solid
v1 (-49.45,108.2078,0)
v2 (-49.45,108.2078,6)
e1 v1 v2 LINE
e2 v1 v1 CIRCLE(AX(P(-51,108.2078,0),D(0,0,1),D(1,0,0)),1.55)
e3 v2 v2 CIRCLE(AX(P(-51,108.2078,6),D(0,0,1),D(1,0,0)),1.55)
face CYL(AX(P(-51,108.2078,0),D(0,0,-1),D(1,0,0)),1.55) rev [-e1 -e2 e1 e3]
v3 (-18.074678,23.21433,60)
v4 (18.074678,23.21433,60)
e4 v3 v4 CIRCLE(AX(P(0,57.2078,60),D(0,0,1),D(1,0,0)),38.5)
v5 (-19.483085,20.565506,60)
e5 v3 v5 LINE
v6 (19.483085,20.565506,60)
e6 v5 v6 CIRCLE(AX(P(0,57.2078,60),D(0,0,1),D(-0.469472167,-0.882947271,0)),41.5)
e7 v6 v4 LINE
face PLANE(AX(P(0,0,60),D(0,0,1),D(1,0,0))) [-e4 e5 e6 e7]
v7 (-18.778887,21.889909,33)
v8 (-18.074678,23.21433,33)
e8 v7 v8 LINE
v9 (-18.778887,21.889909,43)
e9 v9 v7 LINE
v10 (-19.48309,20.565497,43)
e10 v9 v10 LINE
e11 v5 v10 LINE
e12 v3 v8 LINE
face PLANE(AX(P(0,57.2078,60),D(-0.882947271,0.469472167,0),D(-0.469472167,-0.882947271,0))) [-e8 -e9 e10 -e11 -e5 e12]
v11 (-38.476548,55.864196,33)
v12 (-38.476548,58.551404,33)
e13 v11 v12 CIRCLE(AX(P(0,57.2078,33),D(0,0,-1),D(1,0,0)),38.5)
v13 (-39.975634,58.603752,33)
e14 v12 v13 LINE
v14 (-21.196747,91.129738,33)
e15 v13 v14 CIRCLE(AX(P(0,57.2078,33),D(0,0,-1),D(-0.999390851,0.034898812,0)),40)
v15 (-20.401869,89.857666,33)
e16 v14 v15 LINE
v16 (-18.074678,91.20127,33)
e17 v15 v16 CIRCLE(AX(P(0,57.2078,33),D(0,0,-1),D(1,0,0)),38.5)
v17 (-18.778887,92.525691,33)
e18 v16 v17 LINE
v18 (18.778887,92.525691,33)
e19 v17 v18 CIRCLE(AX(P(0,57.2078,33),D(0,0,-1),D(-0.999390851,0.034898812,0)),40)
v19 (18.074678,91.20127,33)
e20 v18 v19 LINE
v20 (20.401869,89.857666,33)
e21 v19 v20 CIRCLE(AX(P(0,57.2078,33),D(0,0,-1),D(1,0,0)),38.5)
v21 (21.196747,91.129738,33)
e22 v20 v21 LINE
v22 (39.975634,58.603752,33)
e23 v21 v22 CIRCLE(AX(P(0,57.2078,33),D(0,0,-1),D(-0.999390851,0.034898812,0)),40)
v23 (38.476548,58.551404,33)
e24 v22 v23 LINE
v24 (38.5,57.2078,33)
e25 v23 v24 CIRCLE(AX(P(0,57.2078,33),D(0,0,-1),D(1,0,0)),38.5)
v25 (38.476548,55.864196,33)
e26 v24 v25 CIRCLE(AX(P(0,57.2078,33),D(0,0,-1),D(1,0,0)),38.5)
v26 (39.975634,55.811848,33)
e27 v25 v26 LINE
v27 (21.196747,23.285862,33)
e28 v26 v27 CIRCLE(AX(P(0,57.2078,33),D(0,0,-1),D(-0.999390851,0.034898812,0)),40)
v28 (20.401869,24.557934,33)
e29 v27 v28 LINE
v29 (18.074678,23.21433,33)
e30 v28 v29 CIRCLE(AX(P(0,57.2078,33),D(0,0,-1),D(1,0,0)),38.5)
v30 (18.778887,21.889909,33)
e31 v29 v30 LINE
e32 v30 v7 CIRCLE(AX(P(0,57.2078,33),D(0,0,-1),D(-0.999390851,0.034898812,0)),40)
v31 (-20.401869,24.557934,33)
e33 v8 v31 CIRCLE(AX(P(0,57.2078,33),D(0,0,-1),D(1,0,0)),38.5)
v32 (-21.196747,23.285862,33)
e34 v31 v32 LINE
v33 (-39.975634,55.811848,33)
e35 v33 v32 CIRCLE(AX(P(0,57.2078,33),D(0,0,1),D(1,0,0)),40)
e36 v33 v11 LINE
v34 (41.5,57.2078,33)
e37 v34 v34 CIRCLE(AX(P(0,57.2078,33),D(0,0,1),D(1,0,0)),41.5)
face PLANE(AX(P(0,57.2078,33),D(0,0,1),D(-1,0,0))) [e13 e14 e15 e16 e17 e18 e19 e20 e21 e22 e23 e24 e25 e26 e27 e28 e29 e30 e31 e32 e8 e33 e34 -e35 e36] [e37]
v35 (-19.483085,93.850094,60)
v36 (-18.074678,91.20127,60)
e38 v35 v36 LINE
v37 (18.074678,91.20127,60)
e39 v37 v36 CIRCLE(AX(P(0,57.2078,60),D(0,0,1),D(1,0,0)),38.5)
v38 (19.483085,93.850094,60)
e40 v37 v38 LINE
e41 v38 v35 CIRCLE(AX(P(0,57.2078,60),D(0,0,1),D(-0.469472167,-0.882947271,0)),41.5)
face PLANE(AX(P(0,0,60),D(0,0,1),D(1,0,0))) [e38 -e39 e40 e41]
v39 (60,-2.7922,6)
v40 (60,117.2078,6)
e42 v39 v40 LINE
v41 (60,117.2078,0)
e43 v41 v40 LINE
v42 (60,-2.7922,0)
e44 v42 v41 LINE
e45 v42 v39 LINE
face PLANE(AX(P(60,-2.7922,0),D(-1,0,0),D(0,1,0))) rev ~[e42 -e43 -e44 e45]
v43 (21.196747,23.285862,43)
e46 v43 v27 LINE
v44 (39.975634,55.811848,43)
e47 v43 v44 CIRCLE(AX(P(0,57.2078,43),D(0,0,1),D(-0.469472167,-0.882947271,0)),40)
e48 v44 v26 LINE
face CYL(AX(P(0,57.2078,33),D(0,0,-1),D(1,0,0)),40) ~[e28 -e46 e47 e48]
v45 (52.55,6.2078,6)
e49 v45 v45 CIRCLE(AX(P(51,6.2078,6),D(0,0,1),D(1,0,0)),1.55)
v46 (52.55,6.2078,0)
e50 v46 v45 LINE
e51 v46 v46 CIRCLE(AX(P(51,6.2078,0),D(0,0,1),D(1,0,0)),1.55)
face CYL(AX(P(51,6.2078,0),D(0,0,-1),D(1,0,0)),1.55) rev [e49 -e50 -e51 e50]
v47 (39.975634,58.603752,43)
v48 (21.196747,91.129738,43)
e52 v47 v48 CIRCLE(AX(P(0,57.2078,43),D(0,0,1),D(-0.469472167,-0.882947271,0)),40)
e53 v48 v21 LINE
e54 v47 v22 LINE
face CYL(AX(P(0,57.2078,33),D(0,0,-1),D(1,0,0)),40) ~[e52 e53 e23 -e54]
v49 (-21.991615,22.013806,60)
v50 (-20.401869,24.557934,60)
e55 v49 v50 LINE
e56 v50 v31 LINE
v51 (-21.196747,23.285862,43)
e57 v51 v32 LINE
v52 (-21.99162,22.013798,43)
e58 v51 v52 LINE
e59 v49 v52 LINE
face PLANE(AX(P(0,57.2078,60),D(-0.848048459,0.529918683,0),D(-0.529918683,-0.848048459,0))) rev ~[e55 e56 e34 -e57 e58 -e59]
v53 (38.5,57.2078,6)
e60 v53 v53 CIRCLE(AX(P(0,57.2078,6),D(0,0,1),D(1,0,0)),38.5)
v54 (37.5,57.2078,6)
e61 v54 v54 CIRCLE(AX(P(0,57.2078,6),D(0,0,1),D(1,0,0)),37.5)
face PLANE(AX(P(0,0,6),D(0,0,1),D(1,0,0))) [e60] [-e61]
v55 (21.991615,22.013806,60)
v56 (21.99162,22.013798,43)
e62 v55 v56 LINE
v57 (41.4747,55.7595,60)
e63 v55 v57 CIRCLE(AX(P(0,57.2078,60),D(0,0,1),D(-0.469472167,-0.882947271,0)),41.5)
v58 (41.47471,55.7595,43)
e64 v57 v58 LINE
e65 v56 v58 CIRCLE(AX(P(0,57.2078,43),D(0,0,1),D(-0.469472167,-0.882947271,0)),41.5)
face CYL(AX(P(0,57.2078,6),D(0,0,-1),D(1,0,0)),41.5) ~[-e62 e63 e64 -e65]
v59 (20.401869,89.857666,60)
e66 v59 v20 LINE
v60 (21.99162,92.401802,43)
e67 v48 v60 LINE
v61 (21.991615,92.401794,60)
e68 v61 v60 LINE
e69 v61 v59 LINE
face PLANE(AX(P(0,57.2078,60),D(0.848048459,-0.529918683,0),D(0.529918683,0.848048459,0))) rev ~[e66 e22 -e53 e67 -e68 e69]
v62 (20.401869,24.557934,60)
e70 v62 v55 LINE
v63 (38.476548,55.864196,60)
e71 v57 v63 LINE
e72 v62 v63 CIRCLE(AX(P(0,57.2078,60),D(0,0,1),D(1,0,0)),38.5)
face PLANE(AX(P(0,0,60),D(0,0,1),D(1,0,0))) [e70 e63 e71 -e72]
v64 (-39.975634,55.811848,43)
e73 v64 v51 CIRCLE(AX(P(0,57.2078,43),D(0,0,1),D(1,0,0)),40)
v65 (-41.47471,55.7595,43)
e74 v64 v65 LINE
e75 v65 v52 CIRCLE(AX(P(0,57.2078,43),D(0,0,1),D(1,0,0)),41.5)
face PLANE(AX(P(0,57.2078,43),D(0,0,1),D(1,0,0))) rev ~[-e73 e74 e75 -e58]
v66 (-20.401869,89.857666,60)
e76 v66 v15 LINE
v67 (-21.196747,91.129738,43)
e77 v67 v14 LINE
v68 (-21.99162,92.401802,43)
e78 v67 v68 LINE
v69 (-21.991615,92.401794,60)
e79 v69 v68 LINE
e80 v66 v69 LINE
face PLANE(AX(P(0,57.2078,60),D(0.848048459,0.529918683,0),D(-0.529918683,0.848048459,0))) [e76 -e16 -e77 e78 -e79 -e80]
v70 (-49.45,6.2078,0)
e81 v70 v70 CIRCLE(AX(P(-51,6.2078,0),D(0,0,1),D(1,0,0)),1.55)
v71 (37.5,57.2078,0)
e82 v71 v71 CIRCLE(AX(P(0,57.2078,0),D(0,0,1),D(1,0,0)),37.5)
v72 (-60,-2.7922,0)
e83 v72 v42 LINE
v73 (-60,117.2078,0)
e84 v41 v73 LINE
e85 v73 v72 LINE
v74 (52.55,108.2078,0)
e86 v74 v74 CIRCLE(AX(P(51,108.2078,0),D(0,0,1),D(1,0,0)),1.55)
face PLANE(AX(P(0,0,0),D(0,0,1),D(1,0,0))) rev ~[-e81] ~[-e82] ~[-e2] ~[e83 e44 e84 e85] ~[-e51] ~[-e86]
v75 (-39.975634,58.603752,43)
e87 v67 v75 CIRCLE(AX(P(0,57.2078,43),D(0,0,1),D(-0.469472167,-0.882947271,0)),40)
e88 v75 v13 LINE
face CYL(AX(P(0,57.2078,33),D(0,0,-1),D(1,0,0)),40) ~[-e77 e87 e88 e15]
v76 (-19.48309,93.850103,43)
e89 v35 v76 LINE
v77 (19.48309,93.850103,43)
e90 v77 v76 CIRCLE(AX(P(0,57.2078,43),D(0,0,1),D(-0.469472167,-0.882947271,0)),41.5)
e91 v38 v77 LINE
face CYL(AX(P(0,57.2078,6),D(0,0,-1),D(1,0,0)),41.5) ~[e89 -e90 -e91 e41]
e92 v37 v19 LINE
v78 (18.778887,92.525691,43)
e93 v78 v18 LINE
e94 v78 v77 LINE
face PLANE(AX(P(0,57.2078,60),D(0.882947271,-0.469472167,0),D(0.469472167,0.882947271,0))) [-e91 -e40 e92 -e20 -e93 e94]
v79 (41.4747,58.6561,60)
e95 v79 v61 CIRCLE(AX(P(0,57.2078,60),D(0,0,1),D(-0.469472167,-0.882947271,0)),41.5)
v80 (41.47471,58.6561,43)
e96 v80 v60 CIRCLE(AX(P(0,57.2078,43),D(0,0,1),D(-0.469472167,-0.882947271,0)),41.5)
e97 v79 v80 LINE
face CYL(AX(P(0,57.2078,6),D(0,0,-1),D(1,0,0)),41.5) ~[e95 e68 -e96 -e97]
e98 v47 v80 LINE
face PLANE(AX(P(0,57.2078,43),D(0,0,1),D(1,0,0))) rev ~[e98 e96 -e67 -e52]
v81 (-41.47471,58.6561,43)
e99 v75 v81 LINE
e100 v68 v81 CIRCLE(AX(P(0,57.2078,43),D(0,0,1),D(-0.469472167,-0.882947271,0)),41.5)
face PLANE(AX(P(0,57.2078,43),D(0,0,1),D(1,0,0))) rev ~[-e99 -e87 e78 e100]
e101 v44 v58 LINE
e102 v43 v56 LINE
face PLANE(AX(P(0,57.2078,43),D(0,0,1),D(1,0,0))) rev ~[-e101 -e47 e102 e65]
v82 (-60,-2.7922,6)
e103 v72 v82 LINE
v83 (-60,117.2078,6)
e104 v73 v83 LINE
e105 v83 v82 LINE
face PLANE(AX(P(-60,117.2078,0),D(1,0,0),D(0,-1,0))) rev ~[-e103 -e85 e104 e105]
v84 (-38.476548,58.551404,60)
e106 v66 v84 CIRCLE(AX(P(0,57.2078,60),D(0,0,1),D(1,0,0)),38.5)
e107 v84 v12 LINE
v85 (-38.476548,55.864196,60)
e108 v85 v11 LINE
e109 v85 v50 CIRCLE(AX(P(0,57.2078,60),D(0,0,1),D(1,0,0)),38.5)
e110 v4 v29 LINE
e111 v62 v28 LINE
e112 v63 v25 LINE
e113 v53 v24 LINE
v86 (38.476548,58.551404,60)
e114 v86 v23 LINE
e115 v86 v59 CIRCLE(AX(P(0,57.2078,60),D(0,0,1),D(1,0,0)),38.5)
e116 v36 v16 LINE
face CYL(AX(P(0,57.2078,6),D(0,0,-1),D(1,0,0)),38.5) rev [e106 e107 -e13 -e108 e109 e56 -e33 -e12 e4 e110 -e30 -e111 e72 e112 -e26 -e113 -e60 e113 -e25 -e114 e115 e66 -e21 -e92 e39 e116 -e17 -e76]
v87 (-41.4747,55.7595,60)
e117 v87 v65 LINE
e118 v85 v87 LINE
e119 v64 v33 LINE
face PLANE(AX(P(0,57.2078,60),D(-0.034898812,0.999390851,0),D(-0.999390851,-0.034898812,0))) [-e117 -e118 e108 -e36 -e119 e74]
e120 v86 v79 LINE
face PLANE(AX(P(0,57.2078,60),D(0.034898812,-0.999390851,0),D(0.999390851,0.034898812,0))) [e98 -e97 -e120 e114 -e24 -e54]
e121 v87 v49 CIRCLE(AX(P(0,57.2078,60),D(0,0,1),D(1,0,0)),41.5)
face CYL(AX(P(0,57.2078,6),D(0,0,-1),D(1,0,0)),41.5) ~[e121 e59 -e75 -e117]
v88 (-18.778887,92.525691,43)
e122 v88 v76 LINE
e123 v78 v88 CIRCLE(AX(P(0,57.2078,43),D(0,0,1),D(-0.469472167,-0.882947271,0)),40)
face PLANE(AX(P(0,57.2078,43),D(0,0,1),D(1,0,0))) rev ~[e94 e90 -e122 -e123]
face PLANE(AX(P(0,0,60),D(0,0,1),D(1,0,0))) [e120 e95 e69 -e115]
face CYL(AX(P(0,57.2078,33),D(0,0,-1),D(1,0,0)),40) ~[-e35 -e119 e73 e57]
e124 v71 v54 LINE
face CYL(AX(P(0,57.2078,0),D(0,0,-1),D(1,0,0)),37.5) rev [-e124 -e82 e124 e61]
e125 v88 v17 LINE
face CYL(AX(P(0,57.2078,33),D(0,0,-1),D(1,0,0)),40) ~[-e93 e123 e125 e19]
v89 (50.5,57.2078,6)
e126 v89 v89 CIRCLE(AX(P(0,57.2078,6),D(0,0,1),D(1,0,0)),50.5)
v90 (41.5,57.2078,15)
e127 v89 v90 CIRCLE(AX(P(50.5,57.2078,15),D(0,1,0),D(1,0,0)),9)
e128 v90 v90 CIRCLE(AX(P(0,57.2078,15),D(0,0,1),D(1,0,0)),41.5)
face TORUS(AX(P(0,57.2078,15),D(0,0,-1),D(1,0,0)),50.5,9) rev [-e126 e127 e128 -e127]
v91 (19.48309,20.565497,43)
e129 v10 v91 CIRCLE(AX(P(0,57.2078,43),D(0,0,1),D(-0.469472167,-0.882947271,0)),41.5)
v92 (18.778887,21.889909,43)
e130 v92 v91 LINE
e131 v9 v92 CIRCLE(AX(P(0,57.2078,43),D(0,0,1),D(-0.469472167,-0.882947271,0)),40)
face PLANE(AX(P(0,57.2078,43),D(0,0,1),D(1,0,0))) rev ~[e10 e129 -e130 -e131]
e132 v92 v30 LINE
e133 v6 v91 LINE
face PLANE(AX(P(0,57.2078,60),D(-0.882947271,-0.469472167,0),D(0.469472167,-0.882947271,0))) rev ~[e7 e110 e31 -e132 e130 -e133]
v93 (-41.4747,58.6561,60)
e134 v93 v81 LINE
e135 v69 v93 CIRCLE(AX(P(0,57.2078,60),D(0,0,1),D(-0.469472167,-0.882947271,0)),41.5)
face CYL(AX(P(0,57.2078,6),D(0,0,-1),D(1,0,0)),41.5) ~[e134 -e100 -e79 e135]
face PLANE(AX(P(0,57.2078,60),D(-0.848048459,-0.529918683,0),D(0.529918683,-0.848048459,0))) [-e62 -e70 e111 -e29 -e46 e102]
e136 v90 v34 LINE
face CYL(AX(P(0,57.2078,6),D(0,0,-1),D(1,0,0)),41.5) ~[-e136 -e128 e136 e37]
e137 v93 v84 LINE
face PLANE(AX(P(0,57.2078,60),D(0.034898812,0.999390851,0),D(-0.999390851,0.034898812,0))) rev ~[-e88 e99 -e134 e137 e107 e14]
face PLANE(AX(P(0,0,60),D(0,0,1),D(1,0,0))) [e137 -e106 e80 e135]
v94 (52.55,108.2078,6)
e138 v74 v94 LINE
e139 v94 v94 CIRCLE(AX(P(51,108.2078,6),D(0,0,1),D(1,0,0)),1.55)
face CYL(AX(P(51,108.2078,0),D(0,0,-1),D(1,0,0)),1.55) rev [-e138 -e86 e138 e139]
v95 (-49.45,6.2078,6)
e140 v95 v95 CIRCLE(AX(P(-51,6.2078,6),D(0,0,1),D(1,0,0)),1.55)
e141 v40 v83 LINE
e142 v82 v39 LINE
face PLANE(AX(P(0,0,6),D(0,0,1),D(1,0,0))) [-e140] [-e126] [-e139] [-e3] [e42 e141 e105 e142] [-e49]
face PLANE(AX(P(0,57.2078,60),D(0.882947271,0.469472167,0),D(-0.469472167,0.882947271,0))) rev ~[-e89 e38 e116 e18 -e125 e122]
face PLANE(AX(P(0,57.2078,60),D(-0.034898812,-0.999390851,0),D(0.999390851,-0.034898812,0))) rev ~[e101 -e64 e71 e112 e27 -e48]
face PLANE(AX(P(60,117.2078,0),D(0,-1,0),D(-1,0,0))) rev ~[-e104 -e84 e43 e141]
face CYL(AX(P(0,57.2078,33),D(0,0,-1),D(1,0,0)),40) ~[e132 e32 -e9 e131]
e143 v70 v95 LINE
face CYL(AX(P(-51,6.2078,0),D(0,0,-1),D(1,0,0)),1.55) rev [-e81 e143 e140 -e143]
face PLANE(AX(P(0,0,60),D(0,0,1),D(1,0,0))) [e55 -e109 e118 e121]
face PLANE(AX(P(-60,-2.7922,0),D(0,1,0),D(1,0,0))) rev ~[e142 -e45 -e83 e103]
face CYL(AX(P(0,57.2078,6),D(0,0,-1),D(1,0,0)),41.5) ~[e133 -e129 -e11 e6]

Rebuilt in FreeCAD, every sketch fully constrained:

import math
import FreeCAD as App
import Part
import Sketcher
Q = App.Units.Quantity


def edges_at(feature, points):
    """Names of the edges that pass closest to the given points."""
    edges = feature.Shape.Edges
    near = lambda p: min(range(len(edges)), key=lambda i: edges[i].distToShape(Part.Vertex(*p))[0])
    return sorted({f"Edge{near(p) + 1}" for p in points})


def add_polygon(sketch, points):
    """Adds a closed chain of lines whose ends are joined by coincident constraints."""
    first, n = sketch.GeometryCount, len(points)
    for a, b in zip(points, points[1:] + points[:1]):
        sketch.addGeometry(Part.LineSegment(App.Vector(*a, 0), App.Vector(*b, 0)), False)
    for i in range(n):
        sketch.addConstraint(Sketcher.Constraint("Coincident", first + i, 2, first + (i + 1) % n, 1))

doc = App.newDocument("Part")
params = doc.addObject("Spreadsheet::Sheet", "Params")
for row, (alias, value) in enumerate([
    ("sketch1_diameter", "75 mm"),
    ("sketch1_diameter2", "3.1 mm"),
    ("sketch1_width", "120 mm"),
    ("pad1_length", "6 mm"),
    ("sketch2_diameter", "77 mm"),
    ("sketch2_diameter2", "83 mm"),
    ("pad2_length", "54 mm"),
    ("sketch3_diameter", "83 mm"),
    ("sketch3_diameter2", "80 mm"),
    ("pocket1_length", "10 mm"),
    ("sketch4_radius", "41.5 mm"),
    ("pocket2_length", "27 mm"),
    ("fillet_radius", "9 mm"),
], start=1):
    params.set(f"A{row}", alias)
    params.set(f"B{row}", "=" + value)
    params.setAlias(f"B{row}", alias)

body = doc.addObject("PartDesign::Body", "Body")

# Sketch on XY plane
sketch1 = body.newObject("Sketcher::SketchObject", "Sketch")
sketch1.AttachmentSupport = (doc.getObject("XY_Plane"), [""])
sketch1.MapMode = "FlatFace"
add_polygon(sketch1, [(60, 117.2), (-60, 117.2), (-60, -2.8), (60, -2.8)])  # lines 0-3
sketch1.addGeometry(Part.Circle(App.Vector(0, 57.2, 0), App.Vector(0, 0, 1), 37.5), False)  # 4
sketch1.addGeometry(Part.Circle(App.Vector(-51, 6.2, 0), App.Vector(0, 0, 1), 1.6), False)  # 5
sketch1.addGeometry(Part.Circle(App.Vector(-51, 108.2, 0), App.Vector(0, 0, 1), 1.6), False)  # 6
sketch1.addGeometry(Part.Circle(App.Vector(51, 6.2, 0), App.Vector(0, 0, 1), 1.6), False)  # 7
sketch1.addGeometry(Part.Circle(App.Vector(51, 108.2, 0), App.Vector(0, 0, 1), 1.6), False)  # 8
sketch1.addConstraint([
    Sketcher.Constraint("Horizontal", 0),
    Sketcher.Constraint("Vertical", 1),
    Sketcher.Constraint("Horizontal", 2),
    Sketcher.Constraint("Vertical", 3),
    Sketcher.Constraint("Equal", 5, 6),
    Sketcher.Constraint("Equal", 6, 7),
    Sketcher.Constraint("Equal", 7, 8),
    Sketcher.Constraint("Symmetric", 5, 3, 7, 3, -2),
    Sketcher.Constraint("Symmetric", 6, 3, 8, 3, -2),
    Sketcher.Constraint("PointOnObject", 4, 3, -2),
    Sketcher.Constraint("Vertical", 5, 3, 6, 3),
    Sketcher.Constraint("Equal", 2, 1),
    Sketcher.Constraint("Diameter", 4, Q("75 mm")),
    Sketcher.Constraint("Diameter", 5, Q("3.1 mm")),
    Sketcher.Constraint("DistanceX", 0, 2, 0, 1, Q("120 mm")),
    Sketcher.Constraint("DistanceX", 5, 3, -1, 1, Q("51 mm")),
    Sketcher.Constraint("DistanceX", 0, 2, -1, 1, Q("60 mm")),
    Sketcher.Constraint("DistanceY", 5, 3, 4, 3, Q("51 mm")),
    Sketcher.Constraint("DistanceY", 4, 3, 6, 3, Q("51 mm")),
    Sketcher.Constraint("DistanceY", 6, 3, 0, 2, Q("9 mm")),
    Sketcher.Constraint("DistanceY", -1, 1, 4, 3, Q("57.2078 mm")),
])
sketch1.setExpression("Constraints[16]", "Params.sketch1_diameter")
sketch1.setExpression("Constraints[17]", "Params.sketch1_diameter2")
sketch1.setExpression("Constraints[18]", "Params.sketch1_width")
pad1 = body.newObject("PartDesign::Pad", "Pad")
pad1.Profile = sketch1
pad1.setExpression("Length", "Params.pad1_length")

# Sketch on XY plane
sketch2 = body.newObject("Sketcher::SketchObject", "Sketch001")
sketch2.AttachmentSupport = (doc.getObject("XY_Plane"), [""])
sketch2.MapMode = "FlatFace"
sketch2.AttachmentOffset = App.Placement(App.Vector(0, 0, 6), App.Rotation())
sketch2.addGeometry([
    Part.Circle(App.Vector(0, 57, 0), App.Vector(0, 0, 1), 42),
    Part.Circle(App.Vector(0, 57, 0), App.Vector(0, 0, 1), 38),
], False)
sketch2.addConstraint([
    Sketcher.Constraint("Coincident", 1, 3, 0, 3),
    Sketcher.Constraint("PointOnObject", 0, 3, -2),
    Sketcher.Constraint("Diameter", 1, Q("77 mm")),
    Sketcher.Constraint("Diameter", 0, Q("83 mm")),
    Sketcher.Constraint("DistanceY", -1, 1, 0, 3, Q("57.2078 mm")),
])
sketch2.setExpression("Constraints[2]", "Params.sketch2_diameter")
sketch2.setExpression("Constraints[3]", "Params.sketch2_diameter2")
pad2 = body.newObject("PartDesign::Pad", "Pad001")
pad2.Profile = sketch2
pad2.setExpression("Length", "Params.pad2_length")

# Sketch on XY plane
sketch3 = body.newObject("Sketcher::SketchObject", "Sketch002")
sketch3.AttachmentSupport = (doc.getObject("XY_Plane"), [""])
sketch3.MapMode = "FlatFace"
sketch3.AttachmentOffset = App.Placement(App.Vector(0, 0, 33), App.Rotation())
sketch3.addGeometry([
    Part.Circle(App.Vector(0, 57, 0), App.Vector(0, 0, 1), 42),
    Part.Circle(App.Vector(0, 57, 0), App.Vector(0, 0, 1), 40),
], False)
sketch3.addConstraint([
    Sketcher.Constraint("Coincident", 1, 3, 0, 3),
    Sketcher.Constraint("PointOnObject", 0, 3, -2),
    Sketcher.Constraint("Diameter", 0, Q("83 mm")),
    Sketcher.Constraint("Diameter", 1, Q("80 mm")),
    Sketcher.Constraint("DistanceY", -1, 1, 0, 3, Q("57.2078 mm")),
])
sketch3.setExpression("Constraints[2]", "Params.sketch3_diameter")
sketch3.setExpression("Constraints[3]", "Params.sketch3_diameter2")
pocket1 = body.newObject("PartDesign::Pocket", "Pocket")
pocket1.Profile = sketch3
pocket1.setExpression("Length", "Params.pocket1_length")
pocket1.Reversed = True

# Sketch on XY plane
sketch4 = body.newObject("Sketcher::SketchObject", "Sketch003")
sketch4.AttachmentSupport = (doc.getObject("XY_Plane"), [""])
sketch4.MapMode = "FlatFace"
sketch4.AttachmentOffset = App.Placement(App.Vector(0, 0, 60), App.Rotation())
sketch4.addGeometry([
    Part.LineSegment(App.Vector(0, 57.2, 0), App.Vector(-41.5, 58.7, 0)),
    Part.ArcOfCircle(Part.Circle(App.Vector(0, 57.2, 0), App.Vector(0, 0, 1), 41.5), math.radians(178), math.radians(182)),
    Part.LineSegment(App.Vector(-41.5, 55.8, 0), App.Vector(0, 57.2, 0)),
], False)
sketch4.addConstraint([
    Sketcher.Constraint("Coincident", 0, 2, 1, 1),
    Sketcher.Constraint("Coincident", 1, 2, 2, 1),
    Sketcher.Constraint("Coincident", 2, 2, 0, 1),
    Sketcher.Constraint("Coincident", 2, 2, 1, 3),
    Sketcher.Constraint("PointOnObject", 1, 3, -2),
    Sketcher.Constraint("Vertical", 0, 2, 1, 2),
    Sketcher.Constraint("Radius", 1, Q("41.5 mm")),
    Sketcher.Constraint("Angle", 0, Q("178 deg")),
    Sketcher.Constraint("DistanceY", -1, 1, 0, 2, Q("58.656 mm")),
])
sketch4.setExpression("Constraints[6]", "Params.sketch4_radius")
pocket2 = body.newObject("PartDesign::Pocket", "Pocket001")
pocket2.Profile = sketch4
pocket2.setExpression("Length", "Params.pocket2_length")
doc.recompute()

datumline = body.newObject("PartDesign::Line", "DatumLine")
datumline.Placement = App.Placement(App.Vector(0, 57.2078, 0), App.Rotation(App.Vector(0, 0, 1), App.Vector(0, 0, 1)))
polarpattern = body.newObject("PartDesign::PolarPattern", "PolarPattern")
polarpattern.Originals = [pocket2]
polarpattern.Axis = (datumline, [""])
polarpattern.Angle = 360
polarpattern.Occurrences = 6
body.Tip = polarpattern
doc.recompute()

fillet = body.newObject("PartDesign::Fillet", "Fillet")
fillet.Base = (polarpattern, edges_at(polarpattern, [(-41.5, 57.208, 6)]))
fillet.setExpression("Radius", "Params.fillet_radius")

doc.recompute()
